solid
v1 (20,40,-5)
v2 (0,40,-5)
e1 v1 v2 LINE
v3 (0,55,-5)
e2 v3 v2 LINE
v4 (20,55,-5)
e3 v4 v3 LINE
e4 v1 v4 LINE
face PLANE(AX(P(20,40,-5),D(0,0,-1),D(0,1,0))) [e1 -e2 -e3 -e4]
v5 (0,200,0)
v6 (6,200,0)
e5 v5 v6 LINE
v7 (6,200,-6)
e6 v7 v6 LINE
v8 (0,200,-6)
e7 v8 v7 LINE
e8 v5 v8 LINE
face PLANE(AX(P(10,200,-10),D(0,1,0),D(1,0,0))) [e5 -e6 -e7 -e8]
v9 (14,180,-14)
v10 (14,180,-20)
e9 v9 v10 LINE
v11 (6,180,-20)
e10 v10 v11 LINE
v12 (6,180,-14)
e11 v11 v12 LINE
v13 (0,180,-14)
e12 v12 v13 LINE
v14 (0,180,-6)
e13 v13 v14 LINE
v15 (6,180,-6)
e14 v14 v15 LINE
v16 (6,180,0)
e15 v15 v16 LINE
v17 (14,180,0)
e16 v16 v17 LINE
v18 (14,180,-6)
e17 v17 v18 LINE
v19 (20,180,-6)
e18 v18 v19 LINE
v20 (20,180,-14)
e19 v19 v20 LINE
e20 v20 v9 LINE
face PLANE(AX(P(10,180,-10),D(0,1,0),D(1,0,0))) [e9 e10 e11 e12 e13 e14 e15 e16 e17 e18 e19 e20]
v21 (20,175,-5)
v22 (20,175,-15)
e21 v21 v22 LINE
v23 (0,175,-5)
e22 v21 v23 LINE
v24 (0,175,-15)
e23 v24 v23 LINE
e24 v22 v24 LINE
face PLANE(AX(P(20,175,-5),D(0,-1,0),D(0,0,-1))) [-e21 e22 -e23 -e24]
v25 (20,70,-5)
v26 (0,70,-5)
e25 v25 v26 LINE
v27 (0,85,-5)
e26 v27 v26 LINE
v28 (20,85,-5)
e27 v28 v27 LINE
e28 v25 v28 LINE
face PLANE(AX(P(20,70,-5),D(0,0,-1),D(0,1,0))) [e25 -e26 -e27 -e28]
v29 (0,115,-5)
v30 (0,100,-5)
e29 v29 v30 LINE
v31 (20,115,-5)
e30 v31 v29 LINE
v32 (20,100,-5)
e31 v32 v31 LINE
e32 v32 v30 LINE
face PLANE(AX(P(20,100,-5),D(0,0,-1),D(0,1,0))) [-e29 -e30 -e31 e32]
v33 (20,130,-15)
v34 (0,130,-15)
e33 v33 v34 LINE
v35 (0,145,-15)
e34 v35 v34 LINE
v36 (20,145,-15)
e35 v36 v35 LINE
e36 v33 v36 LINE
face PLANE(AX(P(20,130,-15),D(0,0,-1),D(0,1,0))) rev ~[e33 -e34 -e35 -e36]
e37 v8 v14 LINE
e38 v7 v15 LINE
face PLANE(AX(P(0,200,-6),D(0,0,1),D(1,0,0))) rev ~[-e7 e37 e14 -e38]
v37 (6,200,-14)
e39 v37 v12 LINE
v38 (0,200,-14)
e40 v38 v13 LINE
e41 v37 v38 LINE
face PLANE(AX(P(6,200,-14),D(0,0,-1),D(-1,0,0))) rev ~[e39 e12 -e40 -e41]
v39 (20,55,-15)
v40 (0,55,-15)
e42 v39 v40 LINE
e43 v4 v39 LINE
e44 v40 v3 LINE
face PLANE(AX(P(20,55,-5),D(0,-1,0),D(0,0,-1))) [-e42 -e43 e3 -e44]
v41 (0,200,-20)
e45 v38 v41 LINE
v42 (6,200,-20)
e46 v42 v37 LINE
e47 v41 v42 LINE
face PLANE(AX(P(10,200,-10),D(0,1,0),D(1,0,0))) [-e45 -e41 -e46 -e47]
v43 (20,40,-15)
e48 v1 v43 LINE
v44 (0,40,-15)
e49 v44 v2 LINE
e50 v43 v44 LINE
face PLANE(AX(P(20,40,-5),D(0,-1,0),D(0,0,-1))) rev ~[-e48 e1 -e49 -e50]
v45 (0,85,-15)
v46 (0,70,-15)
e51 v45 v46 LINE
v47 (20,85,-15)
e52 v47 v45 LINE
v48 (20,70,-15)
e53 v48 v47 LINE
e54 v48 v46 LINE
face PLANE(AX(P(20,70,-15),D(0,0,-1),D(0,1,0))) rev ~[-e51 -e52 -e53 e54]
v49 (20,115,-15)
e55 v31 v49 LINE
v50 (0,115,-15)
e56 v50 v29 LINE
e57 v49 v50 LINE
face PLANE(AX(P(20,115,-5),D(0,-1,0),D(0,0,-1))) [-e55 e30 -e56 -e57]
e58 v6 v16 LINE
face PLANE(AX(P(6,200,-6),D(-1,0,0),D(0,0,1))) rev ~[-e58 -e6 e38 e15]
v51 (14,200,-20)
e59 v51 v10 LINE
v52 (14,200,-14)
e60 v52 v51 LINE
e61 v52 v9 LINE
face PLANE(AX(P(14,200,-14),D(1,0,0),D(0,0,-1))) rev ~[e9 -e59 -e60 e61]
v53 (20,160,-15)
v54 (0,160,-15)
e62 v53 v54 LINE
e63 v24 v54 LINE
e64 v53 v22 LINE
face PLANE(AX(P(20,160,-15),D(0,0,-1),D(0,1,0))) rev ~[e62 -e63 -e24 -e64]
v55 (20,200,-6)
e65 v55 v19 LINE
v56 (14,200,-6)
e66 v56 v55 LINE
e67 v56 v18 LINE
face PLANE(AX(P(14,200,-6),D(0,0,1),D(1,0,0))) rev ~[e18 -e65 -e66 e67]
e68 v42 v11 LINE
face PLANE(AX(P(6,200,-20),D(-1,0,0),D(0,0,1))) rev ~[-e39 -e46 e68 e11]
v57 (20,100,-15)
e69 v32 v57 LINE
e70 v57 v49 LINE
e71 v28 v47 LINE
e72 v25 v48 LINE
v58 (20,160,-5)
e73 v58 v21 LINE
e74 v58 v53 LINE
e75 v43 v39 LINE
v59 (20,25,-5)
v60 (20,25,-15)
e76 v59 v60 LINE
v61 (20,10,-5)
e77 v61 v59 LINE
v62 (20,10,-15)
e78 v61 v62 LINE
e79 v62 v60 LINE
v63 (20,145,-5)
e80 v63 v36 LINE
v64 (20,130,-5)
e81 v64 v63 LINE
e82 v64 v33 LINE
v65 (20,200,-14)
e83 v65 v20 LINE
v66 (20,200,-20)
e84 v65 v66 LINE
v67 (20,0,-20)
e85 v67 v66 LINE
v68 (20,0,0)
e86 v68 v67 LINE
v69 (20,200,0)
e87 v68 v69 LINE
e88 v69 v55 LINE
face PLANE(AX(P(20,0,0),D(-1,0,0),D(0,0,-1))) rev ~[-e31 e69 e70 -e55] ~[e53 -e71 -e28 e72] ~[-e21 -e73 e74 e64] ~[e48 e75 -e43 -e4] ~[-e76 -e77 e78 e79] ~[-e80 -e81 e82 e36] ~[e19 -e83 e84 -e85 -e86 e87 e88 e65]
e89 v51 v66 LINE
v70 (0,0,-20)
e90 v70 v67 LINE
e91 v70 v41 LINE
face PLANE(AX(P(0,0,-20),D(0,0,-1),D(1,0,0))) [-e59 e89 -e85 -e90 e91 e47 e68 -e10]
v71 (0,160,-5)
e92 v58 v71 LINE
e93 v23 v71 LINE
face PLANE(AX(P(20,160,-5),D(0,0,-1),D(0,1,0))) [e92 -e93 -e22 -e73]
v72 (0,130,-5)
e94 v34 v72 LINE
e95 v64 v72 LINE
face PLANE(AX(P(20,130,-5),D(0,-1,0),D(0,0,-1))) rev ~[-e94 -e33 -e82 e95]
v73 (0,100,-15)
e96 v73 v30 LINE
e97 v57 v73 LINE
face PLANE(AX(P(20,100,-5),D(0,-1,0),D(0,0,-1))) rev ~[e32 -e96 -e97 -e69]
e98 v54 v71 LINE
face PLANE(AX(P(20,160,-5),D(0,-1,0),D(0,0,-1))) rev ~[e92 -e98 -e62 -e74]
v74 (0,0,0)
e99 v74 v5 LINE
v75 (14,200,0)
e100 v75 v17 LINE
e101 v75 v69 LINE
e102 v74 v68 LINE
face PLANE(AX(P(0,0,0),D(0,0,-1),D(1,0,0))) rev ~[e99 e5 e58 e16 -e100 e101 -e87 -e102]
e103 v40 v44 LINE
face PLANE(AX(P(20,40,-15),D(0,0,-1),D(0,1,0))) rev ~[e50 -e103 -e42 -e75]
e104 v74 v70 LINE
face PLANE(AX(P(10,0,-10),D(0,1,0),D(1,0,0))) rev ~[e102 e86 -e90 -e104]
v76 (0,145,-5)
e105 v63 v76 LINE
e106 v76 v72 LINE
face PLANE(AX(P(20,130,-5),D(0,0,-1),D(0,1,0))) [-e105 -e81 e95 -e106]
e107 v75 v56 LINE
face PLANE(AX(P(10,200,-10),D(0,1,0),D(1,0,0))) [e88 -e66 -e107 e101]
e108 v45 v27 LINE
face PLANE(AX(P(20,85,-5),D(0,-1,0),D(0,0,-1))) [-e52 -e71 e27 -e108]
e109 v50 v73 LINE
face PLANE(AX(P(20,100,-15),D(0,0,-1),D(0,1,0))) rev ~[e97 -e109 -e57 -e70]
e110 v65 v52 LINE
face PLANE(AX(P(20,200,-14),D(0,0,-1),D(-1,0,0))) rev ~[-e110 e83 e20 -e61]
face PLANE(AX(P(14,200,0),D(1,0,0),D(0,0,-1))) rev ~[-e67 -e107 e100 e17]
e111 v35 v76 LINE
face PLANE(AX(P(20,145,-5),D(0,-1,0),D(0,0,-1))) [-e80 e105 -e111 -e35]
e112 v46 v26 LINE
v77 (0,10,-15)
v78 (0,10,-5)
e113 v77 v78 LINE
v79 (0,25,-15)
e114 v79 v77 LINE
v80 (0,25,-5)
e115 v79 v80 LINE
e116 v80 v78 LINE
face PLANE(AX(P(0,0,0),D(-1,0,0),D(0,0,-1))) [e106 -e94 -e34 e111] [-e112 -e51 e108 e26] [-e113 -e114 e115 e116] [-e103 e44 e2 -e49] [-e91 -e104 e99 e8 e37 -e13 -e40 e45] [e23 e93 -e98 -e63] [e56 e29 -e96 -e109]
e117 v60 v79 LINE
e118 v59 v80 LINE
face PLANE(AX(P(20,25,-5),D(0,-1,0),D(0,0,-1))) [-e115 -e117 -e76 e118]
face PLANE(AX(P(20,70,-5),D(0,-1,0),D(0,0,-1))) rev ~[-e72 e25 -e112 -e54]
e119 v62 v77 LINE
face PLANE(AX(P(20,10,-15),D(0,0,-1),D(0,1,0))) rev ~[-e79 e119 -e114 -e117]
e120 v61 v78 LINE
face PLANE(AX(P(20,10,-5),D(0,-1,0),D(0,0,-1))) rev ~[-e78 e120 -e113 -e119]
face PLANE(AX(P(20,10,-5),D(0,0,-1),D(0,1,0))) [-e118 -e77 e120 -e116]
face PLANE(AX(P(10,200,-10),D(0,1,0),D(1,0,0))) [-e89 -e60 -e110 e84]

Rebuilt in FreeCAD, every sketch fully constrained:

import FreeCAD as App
import Part
import Sketcher
from FreeCAD import Vector
Q = App.Units.Quantity

doc = App.newDocument("Part")
body = doc.addObject("PartDesign::Body", "Body")

# Sketch on XZ plane
sketch1 = body.newObject("Sketcher::SketchObject", "Sketch")
sketch1.AttachmentSupport = (doc.getObject("XZ_Plane"), [""])
sketch1.MapMode = "FlatFace"
sketch1.addGeometry([
    Part.LineSegment(Vector(0, -20, 0), Vector(0, 0, 0)),
    Part.LineSegment(Vector(0, 0, 0), Vector(20, 0, 0)),
    Part.LineSegment(Vector(20, 0, 0), Vector(20, -20, 0)),
    Part.LineSegment(Vector(20, -20, 0), Vector(0, -20, 0)),
], False)
sketch1.addConstraint([
    Sketcher.Constraint("Coincident", 0, 2, 1, 1),
    Sketcher.Constraint("Coincident", 1, 2, 2, 1),
    Sketcher.Constraint("Coincident", 2, 2, 3, 1),
    Sketcher.Constraint("Coincident", 3, 2, 0, 1),
    Sketcher.Constraint("Vertical", 0),
    Sketcher.Constraint("Horizontal", 1),
    Sketcher.Constraint("Vertical", 2),
    Sketcher.Constraint("Horizontal", 3),
    Sketcher.Constraint("Coincident", 0, 2, -1, 1),
    Sketcher.Constraint("Equal", 3, 0),
    Sketcher.Constraint("DistanceX", 1, 1, 1, 2, Q("20 mm")),
])
pad1 = body.newObject("PartDesign::Pad", "Pad")
pad1.Profile = sketch1
pad1.Length = 200
pad1.Reversed = True

# Sketch on XZ plane
sketch2 = body.newObject("Sketcher::SketchObject", "Sketch001")
sketch2.AttachmentSupport = (doc.getObject("XZ_Plane"), [""])
sketch2.MapMode = "FlatFace"
sketch2.AttachmentOffset = App.Placement(Vector(0, 0, -200), App.Rotation())
sketch2.addGeometry([
    Part.LineSegment(Vector(14, -20, 0), Vector(6, -20, 0)),  # 0
    Part.LineSegment(Vector(6, -20, 0), Vector(6, -14, 0)),  # 1
    Part.LineSegment(Vector(6, -14, 0), Vector(0, -14, 0)),  # 2
    Part.LineSegment(Vector(0, -14, 0), Vector(0, -6, 0)),  # 3
    Part.LineSegment(Vector(0, -6, 0), Vector(6, -6, 0)),  # 4
    Part.LineSegment(Vector(6, -6, 0), Vector(6, 0, 0)),  # 5
    Part.LineSegment(Vector(6, 0, 0), Vector(14, 0, 0)),  # 6
    Part.LineSegment(Vector(14, 0, 0), Vector(14, -6, 0)),  # 7
    Part.LineSegment(Vector(14, -6, 0), Vector(20, -6, 0)),  # 8
    Part.LineSegment(Vector(20, -6, 0), Vector(20, -14, 0)),  # 9
    Part.LineSegment(Vector(20, -14, 0), Vector(14, -14, 0)),  # 10
    Part.LineSegment(Vector(14, -14, 0), Vector(14, -20, 0)),  # 11
], False)
sketch2.addConstraint([
    Sketcher.Constraint("Coincident", 0, 2, 1, 1),
    Sketcher.Constraint("Coincident", 1, 2, 2, 1),
    Sketcher.Constraint("Coincident", 2, 2, 3, 1),
    Sketcher.Constraint("Coincident", 3, 2, 4, 1),
    Sketcher.Constraint("Coincident", 4, 2, 5, 1),
    Sketcher.Constraint("Coincident", 5, 2, 6, 1),
    Sketcher.Constraint("Coincident", 6, 2, 7, 1),
    Sketcher.Constraint("Coincident", 7, 2, 8, 1),
    Sketcher.Constraint("Coincident", 8, 2, 9, 1),
    Sketcher.Constraint("Coincident", 9, 2, 10, 1),
    Sketcher.Constraint("Coincident", 10, 2, 11, 1),
    Sketcher.Constraint("Coincident", 11, 2, 0, 1),
    Sketcher.Constraint("Horizontal", 0),
    Sketcher.Constraint("Vertical", 1),
    Sketcher.Constraint("Horizontal", 2),
    Sketcher.Constraint("Vertical", 3),
    Sketcher.Constraint("Horizontal", 4),
    Sketcher.Constraint("Vertical", 5),
    Sketcher.Constraint("Horizontal", 6),
    Sketcher.Constraint("Vertical", 7),
    Sketcher.Constraint("Horizontal", 8),
    Sketcher.Constraint("Vertical", 9),
    Sketcher.Constraint("Horizontal", 10),
    Sketcher.Constraint("Vertical", 11),
    Sketcher.Constraint("PointOnObject", 2, 2, -2),
    Sketcher.Constraint("PointOnObject", 5, 2, -1),
    Sketcher.Constraint("Horizontal", 4, 2, 7, 2),
    Sketcher.Constraint("Horizontal", 2, 2, 9, 2),
    Sketcher.Constraint("Vertical", 1, 2, 4, 2),
    Sketcher.Constraint("Vertical", 7, 2, 10, 2),
    Sketcher.Constraint("Equal", 4, 8),
    Sketcher.Constraint("Equal", 10, 1),
    Sketcher.Constraint("Equal", 6, 3),
    Sketcher.Constraint("Equal", 1, 5),
    Sketcher.Constraint("DistanceX", 0, 2, 0, 1, Q("8 mm")),
    Sketcher.Constraint("DistanceX", 2, 2, 2, 1, Q("6 mm")),
])
pocket1 = body.newObject("PartDesign::Pocket", "Pocket")
pocket1.Profile = sketch2
pocket1.Length = 20
pocket1.Reversed = True

# Sketch on YZ plane
sketch3 = body.newObject("Sketcher::SketchObject", "Sketch002")
sketch3.AttachmentSupport = (doc.getObject("YZ_Plane"), [""])
sketch3.MapMode = "FlatFace"
sketch3.AttachmentOffset = App.Placement(Vector(0, 0, 20), App.Rotation())
sketch3.addGeometry([
    Part.LineSegment(Vector(25, -5, 0), Vector(10, -5, 0)),  # 0
    Part.LineSegment(Vector(10, -5, 0), Vector(10, -15, 0)),  # 1
    Part.LineSegment(Vector(10, -15, 0), Vector(25, -15, 0)),  # 2
    Part.LineSegment(Vector(25, -15, 0), Vector(25, -5, 0)),  # 3
    Part.LineSegment(Vector(55, -5, 0), Vector(40, -5, 0)),  # 4
    Part.LineSegment(Vector(40, -5, 0), Vector(40, -15, 0)),  # 5
    Part.LineSegment(Vector(40, -15, 0), Vector(55, -15, 0)),  # 6
    Part.LineSegment(Vector(55, -15, 0), Vector(55, -5, 0)),  # 7
    Part.LineSegment(Vector(85, -5, 0), Vector(70, -5, 0)),  # 8
    Part.LineSegment(Vector(70, -5, 0), Vector(70, -15, 0)),  # 9
    Part.LineSegment(Vector(70, -15, 0), Vector(85, -15, 0)),  # 10
    Part.LineSegment(Vector(85, -15, 0), Vector(85, -5, 0)),  # 11
    Part.LineSegment(Vector(115, -5, 0), Vector(100, -5, 0)),  # 12
    Part.LineSegment(Vector(100, -5, 0), Vector(100, -15, 0)),  # 13
    Part.LineSegment(Vector(100, -15, 0), Vector(115, -15, 0)),  # 14
    Part.LineSegment(Vector(115, -15, 0), Vector(115, -5, 0)),  # 15
    Part.LineSegment(Vector(145, -5, 0), Vector(130, -5, 0)),  # 16
    Part.LineSegment(Vector(130, -5, 0), Vector(130, -15, 0)),  # 17
    Part.LineSegment(Vector(130, -15, 0), Vector(145, -15, 0)),  # 18
    Part.LineSegment(Vector(145, -15, 0), Vector(145, -5, 0)),  # 19
    Part.LineSegment(Vector(175, -5, 0), Vector(160, -5, 0)),  # 20
    Part.LineSegment(Vector(160, -5, 0), Vector(160, -15, 0)),  # 21
    Part.LineSegment(Vector(160, -15, 0), Vector(175, -15, 0)),  # 22
    Part.LineSegment(Vector(175, -15, 0), Vector(175, -5, 0)),  # 23
], False)
sketch3.addConstraint([
    Sketcher.Constraint("Coincident", 0, 2, 1, 1),
    Sketcher.Constraint("Coincident", 1, 2, 2, 1),
    Sketcher.Constraint("Coincident", 2, 2, 3, 1),
    Sketcher.Constraint("Coincident", 3, 2, 0, 1),
    Sketcher.Constraint("Coincident", 4, 2, 5, 1),
    Sketcher.Constraint("Coincident", 5, 2, 6, 1),
    Sketcher.Constraint("Coincident", 6, 2, 7, 1),
    Sketcher.Constraint("Coincident", 7, 2, 4, 1),
    Sketcher.Constraint("Coincident", 8, 2, 9, 1),
    Sketcher.Constraint("Coincident", 9, 2, 10, 1),
    Sketcher.Constraint("Coincident", 10, 2, 11, 1),
    Sketcher.Constraint("Coincident", 11, 2, 8, 1),
    Sketcher.Constraint("Coincident", 12, 2, 13, 1),
    Sketcher.Constraint("Coincident", 13, 2, 14, 1),
    Sketcher.Constraint("Coincident", 14, 2, 15, 1),
    Sketcher.Constraint("Coincident", 15, 2, 12, 1),
    Sketcher.Constraint("Coincident", 16, 2, 17, 1),
    Sketcher.Constraint("Coincident", 17, 2, 18, 1),
    Sketcher.Constraint("Coincident", 18, 2, 19, 1),
    Sketcher.Constraint("Coincident", 19, 2, 16, 1),
    Sketcher.Constraint("Coincident", 20, 2, 21, 1),
    Sketcher.Constraint("Coincident", 21, 2, 22, 1),
    Sketcher.Constraint("Coincident", 22, 2, 23, 1),
    Sketcher.Constraint("Coincident", 23, 2, 20, 1),
    Sketcher.Constraint("Horizontal", 0),
    Sketcher.Constraint("Vertical", 1),
    Sketcher.Constraint("Horizontal", 2),
    Sketcher.Constraint("Vertical", 3),
    Sketcher.Constraint("Horizontal", 4),
    Sketcher.Constraint("Vertical", 5),
    Sketcher.Constraint("Horizontal", 6),
    Sketcher.Constraint("Vertical", 7),
    Sketcher.Constraint("Horizontal", 8),
    Sketcher.Constraint("Vertical", 9),
    Sketcher.Constraint("Horizontal", 10),
    Sketcher.Constraint("Vertical", 11),
    Sketcher.Constraint("Horizontal", 12),
    Sketcher.Constraint("Vertical", 13),
    Sketcher.Constraint("Horizontal", 14),
    Sketcher.Constraint("Vertical", 15),
    Sketcher.Constraint("Horizontal", 16),
    Sketcher.Constraint("Vertical", 17),
    Sketcher.Constraint("Horizontal", 18),
    Sketcher.Constraint("Vertical", 19),
    Sketcher.Constraint("Horizontal", 20),
    Sketcher.Constraint("Vertical", 21),
    Sketcher.Constraint("Horizontal", 22),
    Sketcher.Constraint("Vertical", 23),
    Sketcher.Constraint("Horizontal", 3, 2, 4, 2),
    Sketcher.Constraint("Horizontal", 2, 2, 5, 2),
    Sketcher.Constraint("Horizontal", 7, 2, 8, 2),
    Sketcher.Constraint("Horizontal", 6, 2, 9, 2),
    Sketcher.Constraint("Horizontal", 11, 2, 12, 2),
    Sketcher.Constraint("Horizontal", 10, 2, 13, 2),
    Sketcher.Constraint("Horizontal", 15, 2, 16, 2),
    Sketcher.Constraint("Horizontal", 14, 2, 17, 2),
    Sketcher.Constraint("Horizontal", 19, 2, 20, 2),
    Sketcher.Constraint("Horizontal", 18, 2, 21, 2),
    Sketcher.Constraint("Equal", 2, 4),
    Sketcher.Constraint("Equal", 6, 8),
    Sketcher.Constraint("Equal", 10, 12),
    Sketcher.Constraint("Equal", 14, 16),
    Sketcher.Constraint("Equal", 18, 20),
    Sketcher.Constraint("DistanceX", 0, 2, 0, 1, Q("15 mm")),
    Sketcher.Constraint("DistanceY", 1, 2, 1, 1, Q("10 mm")),
    Sketcher.Constraint("DistanceX", -1, 1, 0, 2, Q("10 mm")),
    Sketcher.Constraint("DistanceY", 0, 2, -1, 1, Q("5 mm")),
    Sketcher.Constraint("DistanceX", -1, 1, 4, 2, Q("40 mm")),
    Sketcher.Constraint("DistanceX", -1, 1, 8, 2, Q("70 mm")),
    Sketcher.Constraint("DistanceX", -1, 1, 12, 2, Q("100 mm")),
    Sketcher.Constraint("DistanceX", -1, 1, 16, 2, Q("130 mm")),
    Sketcher.Constraint("DistanceX", -1, 1, 20, 2, Q("160 mm")),
])
pocket2 = body.newObject("PartDesign::Pocket", "Pocket001")
pocket2.Profile = sketch3
pocket2.Type = "ThroughAll"

doc.recompute()
